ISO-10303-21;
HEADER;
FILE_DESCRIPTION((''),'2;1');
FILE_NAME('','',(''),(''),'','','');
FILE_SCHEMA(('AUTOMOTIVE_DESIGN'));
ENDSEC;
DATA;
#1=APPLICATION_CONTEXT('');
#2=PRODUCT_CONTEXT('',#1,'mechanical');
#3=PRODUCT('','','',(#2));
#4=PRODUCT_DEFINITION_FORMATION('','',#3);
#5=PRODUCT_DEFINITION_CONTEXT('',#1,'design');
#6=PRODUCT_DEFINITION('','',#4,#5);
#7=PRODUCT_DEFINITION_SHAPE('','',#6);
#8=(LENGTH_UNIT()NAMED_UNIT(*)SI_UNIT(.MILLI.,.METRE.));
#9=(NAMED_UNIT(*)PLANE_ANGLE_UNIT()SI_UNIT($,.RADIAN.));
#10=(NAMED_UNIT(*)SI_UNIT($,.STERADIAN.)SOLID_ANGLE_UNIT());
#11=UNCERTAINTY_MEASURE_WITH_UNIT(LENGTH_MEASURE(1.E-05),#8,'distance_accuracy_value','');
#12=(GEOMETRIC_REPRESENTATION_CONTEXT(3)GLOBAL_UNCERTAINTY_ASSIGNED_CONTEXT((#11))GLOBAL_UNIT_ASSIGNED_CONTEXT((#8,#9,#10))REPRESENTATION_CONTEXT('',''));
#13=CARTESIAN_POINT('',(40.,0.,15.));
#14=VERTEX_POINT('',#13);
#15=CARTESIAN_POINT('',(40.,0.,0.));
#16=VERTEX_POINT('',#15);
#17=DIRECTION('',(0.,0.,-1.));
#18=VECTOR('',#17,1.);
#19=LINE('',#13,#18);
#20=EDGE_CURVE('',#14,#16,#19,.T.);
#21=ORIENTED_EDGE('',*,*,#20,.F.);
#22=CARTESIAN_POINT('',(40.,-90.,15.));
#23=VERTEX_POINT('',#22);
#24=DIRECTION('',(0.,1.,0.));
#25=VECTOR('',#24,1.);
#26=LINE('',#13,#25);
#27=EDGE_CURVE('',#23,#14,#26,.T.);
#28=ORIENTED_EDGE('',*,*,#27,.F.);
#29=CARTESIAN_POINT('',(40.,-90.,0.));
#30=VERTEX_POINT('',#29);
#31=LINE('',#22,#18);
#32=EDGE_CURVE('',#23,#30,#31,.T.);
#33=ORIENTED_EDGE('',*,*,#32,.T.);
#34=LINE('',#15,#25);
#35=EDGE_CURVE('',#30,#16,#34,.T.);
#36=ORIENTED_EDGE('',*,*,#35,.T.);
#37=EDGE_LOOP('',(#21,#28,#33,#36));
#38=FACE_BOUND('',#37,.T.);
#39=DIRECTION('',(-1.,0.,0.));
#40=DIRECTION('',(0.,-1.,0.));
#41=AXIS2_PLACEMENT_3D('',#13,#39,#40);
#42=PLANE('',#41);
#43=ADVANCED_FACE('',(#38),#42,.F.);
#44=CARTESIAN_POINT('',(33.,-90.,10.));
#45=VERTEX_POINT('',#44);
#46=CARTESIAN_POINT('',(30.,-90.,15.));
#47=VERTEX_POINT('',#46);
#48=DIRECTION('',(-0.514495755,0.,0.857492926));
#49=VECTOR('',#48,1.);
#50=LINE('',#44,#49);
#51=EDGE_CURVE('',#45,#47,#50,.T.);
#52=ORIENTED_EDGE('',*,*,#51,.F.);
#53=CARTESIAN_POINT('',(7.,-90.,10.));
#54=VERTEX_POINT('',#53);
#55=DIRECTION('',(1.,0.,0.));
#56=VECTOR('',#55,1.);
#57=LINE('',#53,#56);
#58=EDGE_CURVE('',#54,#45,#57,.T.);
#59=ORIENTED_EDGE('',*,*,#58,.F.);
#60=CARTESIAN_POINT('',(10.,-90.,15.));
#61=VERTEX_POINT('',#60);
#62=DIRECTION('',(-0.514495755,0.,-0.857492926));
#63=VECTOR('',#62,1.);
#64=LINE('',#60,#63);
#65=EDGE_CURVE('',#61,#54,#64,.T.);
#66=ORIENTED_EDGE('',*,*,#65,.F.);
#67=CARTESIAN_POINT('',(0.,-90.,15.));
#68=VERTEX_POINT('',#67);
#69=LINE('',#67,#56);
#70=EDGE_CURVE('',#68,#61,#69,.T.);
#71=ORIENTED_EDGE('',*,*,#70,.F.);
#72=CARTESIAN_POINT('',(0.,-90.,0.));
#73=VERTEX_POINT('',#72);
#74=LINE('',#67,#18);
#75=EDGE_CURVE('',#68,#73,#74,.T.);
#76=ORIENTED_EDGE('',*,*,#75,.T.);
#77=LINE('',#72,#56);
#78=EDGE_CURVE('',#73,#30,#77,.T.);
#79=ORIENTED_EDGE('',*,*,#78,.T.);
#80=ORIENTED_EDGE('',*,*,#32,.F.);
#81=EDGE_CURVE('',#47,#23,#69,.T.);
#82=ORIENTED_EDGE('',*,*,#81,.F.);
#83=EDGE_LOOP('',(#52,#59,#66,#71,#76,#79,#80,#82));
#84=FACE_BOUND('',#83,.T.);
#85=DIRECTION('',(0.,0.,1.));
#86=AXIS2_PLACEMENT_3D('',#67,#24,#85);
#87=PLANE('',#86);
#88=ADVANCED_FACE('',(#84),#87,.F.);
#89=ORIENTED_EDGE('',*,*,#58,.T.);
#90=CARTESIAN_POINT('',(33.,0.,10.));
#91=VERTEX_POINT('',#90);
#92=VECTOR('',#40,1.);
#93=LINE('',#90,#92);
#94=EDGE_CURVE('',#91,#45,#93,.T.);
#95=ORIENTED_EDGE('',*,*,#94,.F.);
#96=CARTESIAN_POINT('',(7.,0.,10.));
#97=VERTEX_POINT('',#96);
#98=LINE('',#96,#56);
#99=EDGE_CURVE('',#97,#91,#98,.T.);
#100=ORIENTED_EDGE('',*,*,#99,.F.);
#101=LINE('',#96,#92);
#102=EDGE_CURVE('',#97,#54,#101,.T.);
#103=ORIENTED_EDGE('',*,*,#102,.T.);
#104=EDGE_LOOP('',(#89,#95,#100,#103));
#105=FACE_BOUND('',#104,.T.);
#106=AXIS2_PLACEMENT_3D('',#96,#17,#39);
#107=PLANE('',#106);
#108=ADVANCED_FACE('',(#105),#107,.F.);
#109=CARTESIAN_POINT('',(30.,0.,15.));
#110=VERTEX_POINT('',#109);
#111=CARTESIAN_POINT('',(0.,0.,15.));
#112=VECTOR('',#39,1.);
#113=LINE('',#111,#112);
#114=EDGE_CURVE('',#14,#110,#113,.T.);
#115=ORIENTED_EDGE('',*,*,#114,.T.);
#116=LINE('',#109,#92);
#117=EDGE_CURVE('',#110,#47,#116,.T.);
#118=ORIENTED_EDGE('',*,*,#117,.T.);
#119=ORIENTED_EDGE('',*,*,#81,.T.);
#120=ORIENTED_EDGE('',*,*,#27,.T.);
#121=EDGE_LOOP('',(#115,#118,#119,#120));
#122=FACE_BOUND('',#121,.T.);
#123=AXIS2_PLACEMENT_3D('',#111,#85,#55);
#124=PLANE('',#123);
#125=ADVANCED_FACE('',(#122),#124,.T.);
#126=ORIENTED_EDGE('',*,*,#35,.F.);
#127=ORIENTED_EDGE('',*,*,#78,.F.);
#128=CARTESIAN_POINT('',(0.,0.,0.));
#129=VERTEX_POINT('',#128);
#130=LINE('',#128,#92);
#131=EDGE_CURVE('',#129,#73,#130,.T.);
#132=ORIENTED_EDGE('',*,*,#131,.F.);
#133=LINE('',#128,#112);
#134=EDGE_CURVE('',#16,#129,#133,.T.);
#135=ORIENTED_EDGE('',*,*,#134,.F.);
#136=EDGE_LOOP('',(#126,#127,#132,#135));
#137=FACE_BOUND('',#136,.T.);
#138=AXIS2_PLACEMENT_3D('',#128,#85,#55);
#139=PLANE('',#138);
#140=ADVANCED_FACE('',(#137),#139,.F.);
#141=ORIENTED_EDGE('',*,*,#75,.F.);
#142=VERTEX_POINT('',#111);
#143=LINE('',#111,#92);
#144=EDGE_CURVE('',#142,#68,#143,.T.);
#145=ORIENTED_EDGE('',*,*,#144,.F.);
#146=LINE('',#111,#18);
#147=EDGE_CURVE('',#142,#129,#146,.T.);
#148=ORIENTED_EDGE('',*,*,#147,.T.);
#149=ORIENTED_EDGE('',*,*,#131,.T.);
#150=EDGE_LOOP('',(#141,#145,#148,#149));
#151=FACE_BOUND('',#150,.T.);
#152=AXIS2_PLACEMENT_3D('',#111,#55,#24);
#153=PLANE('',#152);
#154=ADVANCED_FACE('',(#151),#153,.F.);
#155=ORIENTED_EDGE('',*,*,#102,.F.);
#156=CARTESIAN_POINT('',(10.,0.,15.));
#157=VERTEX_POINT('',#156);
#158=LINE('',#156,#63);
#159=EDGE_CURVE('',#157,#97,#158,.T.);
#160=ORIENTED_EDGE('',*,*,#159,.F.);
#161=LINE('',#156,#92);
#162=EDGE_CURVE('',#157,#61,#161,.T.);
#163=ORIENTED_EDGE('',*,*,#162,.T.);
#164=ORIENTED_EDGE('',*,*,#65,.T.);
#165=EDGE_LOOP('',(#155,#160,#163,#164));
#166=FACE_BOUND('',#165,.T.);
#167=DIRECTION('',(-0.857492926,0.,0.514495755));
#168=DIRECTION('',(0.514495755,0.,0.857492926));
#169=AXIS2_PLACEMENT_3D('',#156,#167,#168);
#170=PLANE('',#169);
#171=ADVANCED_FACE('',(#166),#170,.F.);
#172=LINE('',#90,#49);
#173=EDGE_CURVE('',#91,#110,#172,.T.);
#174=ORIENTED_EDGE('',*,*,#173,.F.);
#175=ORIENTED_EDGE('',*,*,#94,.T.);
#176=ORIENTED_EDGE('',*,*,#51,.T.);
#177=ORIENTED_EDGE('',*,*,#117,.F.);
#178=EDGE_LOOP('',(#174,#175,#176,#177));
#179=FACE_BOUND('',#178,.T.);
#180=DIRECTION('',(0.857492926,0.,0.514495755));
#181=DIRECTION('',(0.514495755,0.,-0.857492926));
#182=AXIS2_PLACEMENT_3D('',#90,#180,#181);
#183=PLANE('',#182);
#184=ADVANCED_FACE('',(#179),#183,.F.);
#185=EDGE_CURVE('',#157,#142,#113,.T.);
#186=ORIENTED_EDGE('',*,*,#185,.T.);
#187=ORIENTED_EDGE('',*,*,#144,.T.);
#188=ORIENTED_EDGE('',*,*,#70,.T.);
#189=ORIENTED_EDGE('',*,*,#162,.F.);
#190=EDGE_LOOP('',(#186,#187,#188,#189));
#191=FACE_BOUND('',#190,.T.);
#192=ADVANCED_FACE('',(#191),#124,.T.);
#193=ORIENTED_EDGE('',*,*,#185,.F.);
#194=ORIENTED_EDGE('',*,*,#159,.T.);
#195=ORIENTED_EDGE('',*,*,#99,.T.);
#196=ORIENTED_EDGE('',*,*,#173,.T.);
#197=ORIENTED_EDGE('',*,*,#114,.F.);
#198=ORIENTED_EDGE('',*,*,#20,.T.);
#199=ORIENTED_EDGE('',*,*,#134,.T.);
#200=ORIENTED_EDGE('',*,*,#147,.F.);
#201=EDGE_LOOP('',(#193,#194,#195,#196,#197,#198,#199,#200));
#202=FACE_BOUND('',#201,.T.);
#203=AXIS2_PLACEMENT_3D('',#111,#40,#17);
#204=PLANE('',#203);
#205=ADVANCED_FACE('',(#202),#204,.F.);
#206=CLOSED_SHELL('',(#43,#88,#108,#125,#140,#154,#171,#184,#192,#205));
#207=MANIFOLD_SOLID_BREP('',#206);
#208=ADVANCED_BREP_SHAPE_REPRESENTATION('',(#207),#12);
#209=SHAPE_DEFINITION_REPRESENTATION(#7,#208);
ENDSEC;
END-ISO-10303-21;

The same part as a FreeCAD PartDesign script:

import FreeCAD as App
import Part
import Sketcher


def add_polygon(sketch, points):
    """Adds a closed chain of lines whose ends are joined by coincident constraints."""
    first, n = sketch.GeometryCount, len(points)
    for a, b in zip(points, points[1:] + points[:1]):
        sketch.addGeometry(Part.LineSegment(App.Vector(*a, 0), App.Vector(*b, 0)), False)
    for i in range(n):
        sketch.addConstraint(Sketcher.Constraint("Coincident", first + i, 2, first + (i + 1) % n, 1))

doc = App.newDocument("Part")
body = doc.addObject("PartDesign::Body", "Body")

sketch1 = doc.addObject("Sketcher::SketchObject", "Sketch")
body.addObject(sketch1)
sketch1.AttachmentSupport = (doc.XY_Plane, [""])
sketch1.MapMode = "FlatFace"
add_polygon(sketch1, [(0, 0), (0, -90), (40, -90), (40, 0)])
sketch1.addConstraint([
    Sketcher.Constraint("Vertical", 0),
    Sketcher.Constraint("Horizontal", 1),
    Sketcher.Constraint("Vertical", 2),
    Sketcher.Constraint("Horizontal", 3),
    Sketcher.Constraint("Coincident", 3, 2, -1, 1),
    Sketcher.Constraint("DistanceX", 1, 1, 1, 2, 40.0),
    Sketcher.Constraint("DistanceY", 0, 2, 0, 1, 90.0),
])
pad1 = doc.addObject("PartDesign::Pad", "Pad")
body.addObject(pad1)
pad1.Profile = sketch1
pad1.Length = 15

sketch2 = doc.addObject("Sketcher::SketchObject", "Sketch001")
body.addObject(sketch2)
sketch2.AttachmentSupport = (doc.XZ_Plane, [""])
sketch2.MapMode = "FlatFace"
sketch2.AttachmentOffset = App.Placement(App.Vector(0, 0, 90), App.Rotation())
add_polygon(sketch2, [(10, 15), (7, 10), (33, 10), (30, 15)])
sketch2.addConstraint([
    Sketcher.Constraint("Horizontal", 1),
    Sketcher.Constraint("Horizontal", 3),
    Sketcher.Constraint("Equal", 0, 2),
    Sketcher.Constraint("DistanceX", 1, 1, 1, 2, 26.0),
    Sketcher.Constraint("DistanceX", 3, 2, 3, 1, 20.0),
    Sketcher.Constraint("DistanceX", -1, 1, 0, 2, 7.0),
    Sketcher.Constraint("DistanceY", -1, 1, 0, 2, 10.0),
    Sketcher.Constraint("DistanceY", -1, 1, 2, 2, 15.0),
])
pocket1 = doc.addObject("PartDesign::Pocket", "Pocket")
body.addObject(pocket1)
pocket1.Profile = sketch2
pocket1.Type = "ThroughAll"

doc.recompute()
